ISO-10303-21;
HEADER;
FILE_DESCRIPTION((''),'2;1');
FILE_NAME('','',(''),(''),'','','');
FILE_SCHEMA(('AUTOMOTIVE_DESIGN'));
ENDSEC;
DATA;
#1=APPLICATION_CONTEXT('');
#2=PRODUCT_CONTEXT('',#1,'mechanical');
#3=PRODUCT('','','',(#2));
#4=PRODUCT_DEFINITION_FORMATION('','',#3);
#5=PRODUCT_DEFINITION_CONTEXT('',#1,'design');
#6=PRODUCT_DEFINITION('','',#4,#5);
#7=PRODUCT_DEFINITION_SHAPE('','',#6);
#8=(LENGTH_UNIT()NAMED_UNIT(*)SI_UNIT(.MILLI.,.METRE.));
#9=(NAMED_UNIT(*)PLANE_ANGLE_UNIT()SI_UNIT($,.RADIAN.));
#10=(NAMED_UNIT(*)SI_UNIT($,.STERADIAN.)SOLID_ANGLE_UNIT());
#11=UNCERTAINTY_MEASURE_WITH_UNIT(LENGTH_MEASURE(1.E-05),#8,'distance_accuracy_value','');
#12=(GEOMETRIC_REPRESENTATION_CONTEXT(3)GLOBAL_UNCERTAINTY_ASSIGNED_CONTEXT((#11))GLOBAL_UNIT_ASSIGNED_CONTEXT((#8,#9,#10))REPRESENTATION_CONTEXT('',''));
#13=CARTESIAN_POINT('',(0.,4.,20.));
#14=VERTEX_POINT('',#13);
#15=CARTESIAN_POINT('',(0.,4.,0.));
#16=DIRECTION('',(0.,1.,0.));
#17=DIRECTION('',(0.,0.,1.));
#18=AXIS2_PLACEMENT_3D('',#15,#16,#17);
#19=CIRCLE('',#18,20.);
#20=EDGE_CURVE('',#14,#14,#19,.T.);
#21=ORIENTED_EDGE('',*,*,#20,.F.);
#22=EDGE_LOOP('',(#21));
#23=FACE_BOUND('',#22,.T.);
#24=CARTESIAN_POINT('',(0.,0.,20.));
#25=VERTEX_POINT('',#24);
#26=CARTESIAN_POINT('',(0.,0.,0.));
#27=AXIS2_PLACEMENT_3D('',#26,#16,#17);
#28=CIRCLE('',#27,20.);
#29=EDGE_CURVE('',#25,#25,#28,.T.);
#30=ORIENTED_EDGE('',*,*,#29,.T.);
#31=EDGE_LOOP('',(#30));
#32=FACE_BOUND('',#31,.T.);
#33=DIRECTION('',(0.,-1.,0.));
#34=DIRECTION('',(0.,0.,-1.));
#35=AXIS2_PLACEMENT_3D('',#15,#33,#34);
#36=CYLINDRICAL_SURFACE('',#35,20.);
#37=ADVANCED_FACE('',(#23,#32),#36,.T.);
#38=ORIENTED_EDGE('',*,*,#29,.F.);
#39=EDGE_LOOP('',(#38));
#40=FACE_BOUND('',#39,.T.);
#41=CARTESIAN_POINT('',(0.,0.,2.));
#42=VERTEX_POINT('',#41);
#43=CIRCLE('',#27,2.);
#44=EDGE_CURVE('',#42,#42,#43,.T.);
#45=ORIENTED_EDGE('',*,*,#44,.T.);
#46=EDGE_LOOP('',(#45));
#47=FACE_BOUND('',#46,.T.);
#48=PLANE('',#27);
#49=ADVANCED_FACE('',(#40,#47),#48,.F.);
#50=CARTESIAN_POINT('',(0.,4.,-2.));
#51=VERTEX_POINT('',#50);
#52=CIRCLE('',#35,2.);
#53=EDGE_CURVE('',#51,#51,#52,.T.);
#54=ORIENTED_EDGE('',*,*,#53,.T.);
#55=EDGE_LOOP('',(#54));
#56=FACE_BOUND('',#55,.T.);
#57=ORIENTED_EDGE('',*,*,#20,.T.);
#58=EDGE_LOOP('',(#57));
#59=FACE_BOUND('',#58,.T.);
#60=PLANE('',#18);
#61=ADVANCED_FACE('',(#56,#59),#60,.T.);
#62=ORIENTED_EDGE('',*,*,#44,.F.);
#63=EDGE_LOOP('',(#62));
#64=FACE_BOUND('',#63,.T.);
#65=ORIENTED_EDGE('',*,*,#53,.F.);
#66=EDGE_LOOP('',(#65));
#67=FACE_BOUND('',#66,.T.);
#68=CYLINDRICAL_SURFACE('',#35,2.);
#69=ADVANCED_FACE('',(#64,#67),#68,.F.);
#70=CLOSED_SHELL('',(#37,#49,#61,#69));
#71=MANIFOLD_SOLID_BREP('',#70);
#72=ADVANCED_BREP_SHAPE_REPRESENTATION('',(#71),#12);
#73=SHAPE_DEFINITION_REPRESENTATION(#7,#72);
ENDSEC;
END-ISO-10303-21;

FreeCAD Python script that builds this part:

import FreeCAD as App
import Part
import Sketcher

V = App.Vector

doc = App.newDocument("Part")
params = doc.addObject("Spreadsheet::Sheet", "Params")
for row, (alias, value) in enumerate([
    ("sketch1_diameter", "40 mm"),
    ("pad1_length", "4 mm"),
    ("sketch2_diameter", "4 mm"),
], start=1):
    params.set(f"A{row}", alias)
    params.set(f"B{row}", "=" + value)
    params.setAlias(f"B{row}", alias)

body = doc.addObject("PartDesign::Body", "Body")

# Sketch on XZ plane
sketch1 = doc.addObject("Sketcher::SketchObject", "Sketch")
body.addObject(sketch1)
sketch1.AttachmentSupport = (doc.XZ_Plane, [""])
sketch1.MapMode = "FlatFace"
sketch1.addGeometry(Part.Circle(V(0, 0, 0), V(0, 0, 1), 20), False)
sketch1.addConstraint([
    Sketcher.Constraint("Coincident", 0, 3, -1, 1),
    Sketcher.Constraint("Diameter", 0, 40.0),
])
sketch1.setExpression("Constraints[1]", "Params.sketch1_diameter")
pad1 = doc.addObject("PartDesign::Pad", "Pad")
body.addObject(pad1)
pad1.Profile = sketch1
pad1.setExpression("Length", "Params.pad1_length")
pad1.Reversed = True

# Sketch on XZ plane
sketch2 = doc.addObject("Sketcher::SketchObject", "Sketch001")
body.addObject(sketch2)
sketch2.AttachmentSupport = (doc.XZ_Plane, [""])
sketch2.MapMode = "FlatFace"
sketch2.addGeometry(Part.Circle(V(0, 0, 0), V(0, 0, 1), 2), False)
sketch2.addConstraint([
    Sketcher.Constraint("Coincident", 0, 3, -1, 1),
    Sketcher.Constraint("Diameter", 0, 4.0),
])
sketch2.setExpression("Constraints[1]", "Params.sketch2_diameter")
pocket1 = doc.addObject("PartDesign::Pocket", "Pocket")
body.addObject(pocket1)
pocket1.Profile = sketch2
pocket1.Type = "ThroughAll"
pocket1.Midplane = True

doc.recompute()
